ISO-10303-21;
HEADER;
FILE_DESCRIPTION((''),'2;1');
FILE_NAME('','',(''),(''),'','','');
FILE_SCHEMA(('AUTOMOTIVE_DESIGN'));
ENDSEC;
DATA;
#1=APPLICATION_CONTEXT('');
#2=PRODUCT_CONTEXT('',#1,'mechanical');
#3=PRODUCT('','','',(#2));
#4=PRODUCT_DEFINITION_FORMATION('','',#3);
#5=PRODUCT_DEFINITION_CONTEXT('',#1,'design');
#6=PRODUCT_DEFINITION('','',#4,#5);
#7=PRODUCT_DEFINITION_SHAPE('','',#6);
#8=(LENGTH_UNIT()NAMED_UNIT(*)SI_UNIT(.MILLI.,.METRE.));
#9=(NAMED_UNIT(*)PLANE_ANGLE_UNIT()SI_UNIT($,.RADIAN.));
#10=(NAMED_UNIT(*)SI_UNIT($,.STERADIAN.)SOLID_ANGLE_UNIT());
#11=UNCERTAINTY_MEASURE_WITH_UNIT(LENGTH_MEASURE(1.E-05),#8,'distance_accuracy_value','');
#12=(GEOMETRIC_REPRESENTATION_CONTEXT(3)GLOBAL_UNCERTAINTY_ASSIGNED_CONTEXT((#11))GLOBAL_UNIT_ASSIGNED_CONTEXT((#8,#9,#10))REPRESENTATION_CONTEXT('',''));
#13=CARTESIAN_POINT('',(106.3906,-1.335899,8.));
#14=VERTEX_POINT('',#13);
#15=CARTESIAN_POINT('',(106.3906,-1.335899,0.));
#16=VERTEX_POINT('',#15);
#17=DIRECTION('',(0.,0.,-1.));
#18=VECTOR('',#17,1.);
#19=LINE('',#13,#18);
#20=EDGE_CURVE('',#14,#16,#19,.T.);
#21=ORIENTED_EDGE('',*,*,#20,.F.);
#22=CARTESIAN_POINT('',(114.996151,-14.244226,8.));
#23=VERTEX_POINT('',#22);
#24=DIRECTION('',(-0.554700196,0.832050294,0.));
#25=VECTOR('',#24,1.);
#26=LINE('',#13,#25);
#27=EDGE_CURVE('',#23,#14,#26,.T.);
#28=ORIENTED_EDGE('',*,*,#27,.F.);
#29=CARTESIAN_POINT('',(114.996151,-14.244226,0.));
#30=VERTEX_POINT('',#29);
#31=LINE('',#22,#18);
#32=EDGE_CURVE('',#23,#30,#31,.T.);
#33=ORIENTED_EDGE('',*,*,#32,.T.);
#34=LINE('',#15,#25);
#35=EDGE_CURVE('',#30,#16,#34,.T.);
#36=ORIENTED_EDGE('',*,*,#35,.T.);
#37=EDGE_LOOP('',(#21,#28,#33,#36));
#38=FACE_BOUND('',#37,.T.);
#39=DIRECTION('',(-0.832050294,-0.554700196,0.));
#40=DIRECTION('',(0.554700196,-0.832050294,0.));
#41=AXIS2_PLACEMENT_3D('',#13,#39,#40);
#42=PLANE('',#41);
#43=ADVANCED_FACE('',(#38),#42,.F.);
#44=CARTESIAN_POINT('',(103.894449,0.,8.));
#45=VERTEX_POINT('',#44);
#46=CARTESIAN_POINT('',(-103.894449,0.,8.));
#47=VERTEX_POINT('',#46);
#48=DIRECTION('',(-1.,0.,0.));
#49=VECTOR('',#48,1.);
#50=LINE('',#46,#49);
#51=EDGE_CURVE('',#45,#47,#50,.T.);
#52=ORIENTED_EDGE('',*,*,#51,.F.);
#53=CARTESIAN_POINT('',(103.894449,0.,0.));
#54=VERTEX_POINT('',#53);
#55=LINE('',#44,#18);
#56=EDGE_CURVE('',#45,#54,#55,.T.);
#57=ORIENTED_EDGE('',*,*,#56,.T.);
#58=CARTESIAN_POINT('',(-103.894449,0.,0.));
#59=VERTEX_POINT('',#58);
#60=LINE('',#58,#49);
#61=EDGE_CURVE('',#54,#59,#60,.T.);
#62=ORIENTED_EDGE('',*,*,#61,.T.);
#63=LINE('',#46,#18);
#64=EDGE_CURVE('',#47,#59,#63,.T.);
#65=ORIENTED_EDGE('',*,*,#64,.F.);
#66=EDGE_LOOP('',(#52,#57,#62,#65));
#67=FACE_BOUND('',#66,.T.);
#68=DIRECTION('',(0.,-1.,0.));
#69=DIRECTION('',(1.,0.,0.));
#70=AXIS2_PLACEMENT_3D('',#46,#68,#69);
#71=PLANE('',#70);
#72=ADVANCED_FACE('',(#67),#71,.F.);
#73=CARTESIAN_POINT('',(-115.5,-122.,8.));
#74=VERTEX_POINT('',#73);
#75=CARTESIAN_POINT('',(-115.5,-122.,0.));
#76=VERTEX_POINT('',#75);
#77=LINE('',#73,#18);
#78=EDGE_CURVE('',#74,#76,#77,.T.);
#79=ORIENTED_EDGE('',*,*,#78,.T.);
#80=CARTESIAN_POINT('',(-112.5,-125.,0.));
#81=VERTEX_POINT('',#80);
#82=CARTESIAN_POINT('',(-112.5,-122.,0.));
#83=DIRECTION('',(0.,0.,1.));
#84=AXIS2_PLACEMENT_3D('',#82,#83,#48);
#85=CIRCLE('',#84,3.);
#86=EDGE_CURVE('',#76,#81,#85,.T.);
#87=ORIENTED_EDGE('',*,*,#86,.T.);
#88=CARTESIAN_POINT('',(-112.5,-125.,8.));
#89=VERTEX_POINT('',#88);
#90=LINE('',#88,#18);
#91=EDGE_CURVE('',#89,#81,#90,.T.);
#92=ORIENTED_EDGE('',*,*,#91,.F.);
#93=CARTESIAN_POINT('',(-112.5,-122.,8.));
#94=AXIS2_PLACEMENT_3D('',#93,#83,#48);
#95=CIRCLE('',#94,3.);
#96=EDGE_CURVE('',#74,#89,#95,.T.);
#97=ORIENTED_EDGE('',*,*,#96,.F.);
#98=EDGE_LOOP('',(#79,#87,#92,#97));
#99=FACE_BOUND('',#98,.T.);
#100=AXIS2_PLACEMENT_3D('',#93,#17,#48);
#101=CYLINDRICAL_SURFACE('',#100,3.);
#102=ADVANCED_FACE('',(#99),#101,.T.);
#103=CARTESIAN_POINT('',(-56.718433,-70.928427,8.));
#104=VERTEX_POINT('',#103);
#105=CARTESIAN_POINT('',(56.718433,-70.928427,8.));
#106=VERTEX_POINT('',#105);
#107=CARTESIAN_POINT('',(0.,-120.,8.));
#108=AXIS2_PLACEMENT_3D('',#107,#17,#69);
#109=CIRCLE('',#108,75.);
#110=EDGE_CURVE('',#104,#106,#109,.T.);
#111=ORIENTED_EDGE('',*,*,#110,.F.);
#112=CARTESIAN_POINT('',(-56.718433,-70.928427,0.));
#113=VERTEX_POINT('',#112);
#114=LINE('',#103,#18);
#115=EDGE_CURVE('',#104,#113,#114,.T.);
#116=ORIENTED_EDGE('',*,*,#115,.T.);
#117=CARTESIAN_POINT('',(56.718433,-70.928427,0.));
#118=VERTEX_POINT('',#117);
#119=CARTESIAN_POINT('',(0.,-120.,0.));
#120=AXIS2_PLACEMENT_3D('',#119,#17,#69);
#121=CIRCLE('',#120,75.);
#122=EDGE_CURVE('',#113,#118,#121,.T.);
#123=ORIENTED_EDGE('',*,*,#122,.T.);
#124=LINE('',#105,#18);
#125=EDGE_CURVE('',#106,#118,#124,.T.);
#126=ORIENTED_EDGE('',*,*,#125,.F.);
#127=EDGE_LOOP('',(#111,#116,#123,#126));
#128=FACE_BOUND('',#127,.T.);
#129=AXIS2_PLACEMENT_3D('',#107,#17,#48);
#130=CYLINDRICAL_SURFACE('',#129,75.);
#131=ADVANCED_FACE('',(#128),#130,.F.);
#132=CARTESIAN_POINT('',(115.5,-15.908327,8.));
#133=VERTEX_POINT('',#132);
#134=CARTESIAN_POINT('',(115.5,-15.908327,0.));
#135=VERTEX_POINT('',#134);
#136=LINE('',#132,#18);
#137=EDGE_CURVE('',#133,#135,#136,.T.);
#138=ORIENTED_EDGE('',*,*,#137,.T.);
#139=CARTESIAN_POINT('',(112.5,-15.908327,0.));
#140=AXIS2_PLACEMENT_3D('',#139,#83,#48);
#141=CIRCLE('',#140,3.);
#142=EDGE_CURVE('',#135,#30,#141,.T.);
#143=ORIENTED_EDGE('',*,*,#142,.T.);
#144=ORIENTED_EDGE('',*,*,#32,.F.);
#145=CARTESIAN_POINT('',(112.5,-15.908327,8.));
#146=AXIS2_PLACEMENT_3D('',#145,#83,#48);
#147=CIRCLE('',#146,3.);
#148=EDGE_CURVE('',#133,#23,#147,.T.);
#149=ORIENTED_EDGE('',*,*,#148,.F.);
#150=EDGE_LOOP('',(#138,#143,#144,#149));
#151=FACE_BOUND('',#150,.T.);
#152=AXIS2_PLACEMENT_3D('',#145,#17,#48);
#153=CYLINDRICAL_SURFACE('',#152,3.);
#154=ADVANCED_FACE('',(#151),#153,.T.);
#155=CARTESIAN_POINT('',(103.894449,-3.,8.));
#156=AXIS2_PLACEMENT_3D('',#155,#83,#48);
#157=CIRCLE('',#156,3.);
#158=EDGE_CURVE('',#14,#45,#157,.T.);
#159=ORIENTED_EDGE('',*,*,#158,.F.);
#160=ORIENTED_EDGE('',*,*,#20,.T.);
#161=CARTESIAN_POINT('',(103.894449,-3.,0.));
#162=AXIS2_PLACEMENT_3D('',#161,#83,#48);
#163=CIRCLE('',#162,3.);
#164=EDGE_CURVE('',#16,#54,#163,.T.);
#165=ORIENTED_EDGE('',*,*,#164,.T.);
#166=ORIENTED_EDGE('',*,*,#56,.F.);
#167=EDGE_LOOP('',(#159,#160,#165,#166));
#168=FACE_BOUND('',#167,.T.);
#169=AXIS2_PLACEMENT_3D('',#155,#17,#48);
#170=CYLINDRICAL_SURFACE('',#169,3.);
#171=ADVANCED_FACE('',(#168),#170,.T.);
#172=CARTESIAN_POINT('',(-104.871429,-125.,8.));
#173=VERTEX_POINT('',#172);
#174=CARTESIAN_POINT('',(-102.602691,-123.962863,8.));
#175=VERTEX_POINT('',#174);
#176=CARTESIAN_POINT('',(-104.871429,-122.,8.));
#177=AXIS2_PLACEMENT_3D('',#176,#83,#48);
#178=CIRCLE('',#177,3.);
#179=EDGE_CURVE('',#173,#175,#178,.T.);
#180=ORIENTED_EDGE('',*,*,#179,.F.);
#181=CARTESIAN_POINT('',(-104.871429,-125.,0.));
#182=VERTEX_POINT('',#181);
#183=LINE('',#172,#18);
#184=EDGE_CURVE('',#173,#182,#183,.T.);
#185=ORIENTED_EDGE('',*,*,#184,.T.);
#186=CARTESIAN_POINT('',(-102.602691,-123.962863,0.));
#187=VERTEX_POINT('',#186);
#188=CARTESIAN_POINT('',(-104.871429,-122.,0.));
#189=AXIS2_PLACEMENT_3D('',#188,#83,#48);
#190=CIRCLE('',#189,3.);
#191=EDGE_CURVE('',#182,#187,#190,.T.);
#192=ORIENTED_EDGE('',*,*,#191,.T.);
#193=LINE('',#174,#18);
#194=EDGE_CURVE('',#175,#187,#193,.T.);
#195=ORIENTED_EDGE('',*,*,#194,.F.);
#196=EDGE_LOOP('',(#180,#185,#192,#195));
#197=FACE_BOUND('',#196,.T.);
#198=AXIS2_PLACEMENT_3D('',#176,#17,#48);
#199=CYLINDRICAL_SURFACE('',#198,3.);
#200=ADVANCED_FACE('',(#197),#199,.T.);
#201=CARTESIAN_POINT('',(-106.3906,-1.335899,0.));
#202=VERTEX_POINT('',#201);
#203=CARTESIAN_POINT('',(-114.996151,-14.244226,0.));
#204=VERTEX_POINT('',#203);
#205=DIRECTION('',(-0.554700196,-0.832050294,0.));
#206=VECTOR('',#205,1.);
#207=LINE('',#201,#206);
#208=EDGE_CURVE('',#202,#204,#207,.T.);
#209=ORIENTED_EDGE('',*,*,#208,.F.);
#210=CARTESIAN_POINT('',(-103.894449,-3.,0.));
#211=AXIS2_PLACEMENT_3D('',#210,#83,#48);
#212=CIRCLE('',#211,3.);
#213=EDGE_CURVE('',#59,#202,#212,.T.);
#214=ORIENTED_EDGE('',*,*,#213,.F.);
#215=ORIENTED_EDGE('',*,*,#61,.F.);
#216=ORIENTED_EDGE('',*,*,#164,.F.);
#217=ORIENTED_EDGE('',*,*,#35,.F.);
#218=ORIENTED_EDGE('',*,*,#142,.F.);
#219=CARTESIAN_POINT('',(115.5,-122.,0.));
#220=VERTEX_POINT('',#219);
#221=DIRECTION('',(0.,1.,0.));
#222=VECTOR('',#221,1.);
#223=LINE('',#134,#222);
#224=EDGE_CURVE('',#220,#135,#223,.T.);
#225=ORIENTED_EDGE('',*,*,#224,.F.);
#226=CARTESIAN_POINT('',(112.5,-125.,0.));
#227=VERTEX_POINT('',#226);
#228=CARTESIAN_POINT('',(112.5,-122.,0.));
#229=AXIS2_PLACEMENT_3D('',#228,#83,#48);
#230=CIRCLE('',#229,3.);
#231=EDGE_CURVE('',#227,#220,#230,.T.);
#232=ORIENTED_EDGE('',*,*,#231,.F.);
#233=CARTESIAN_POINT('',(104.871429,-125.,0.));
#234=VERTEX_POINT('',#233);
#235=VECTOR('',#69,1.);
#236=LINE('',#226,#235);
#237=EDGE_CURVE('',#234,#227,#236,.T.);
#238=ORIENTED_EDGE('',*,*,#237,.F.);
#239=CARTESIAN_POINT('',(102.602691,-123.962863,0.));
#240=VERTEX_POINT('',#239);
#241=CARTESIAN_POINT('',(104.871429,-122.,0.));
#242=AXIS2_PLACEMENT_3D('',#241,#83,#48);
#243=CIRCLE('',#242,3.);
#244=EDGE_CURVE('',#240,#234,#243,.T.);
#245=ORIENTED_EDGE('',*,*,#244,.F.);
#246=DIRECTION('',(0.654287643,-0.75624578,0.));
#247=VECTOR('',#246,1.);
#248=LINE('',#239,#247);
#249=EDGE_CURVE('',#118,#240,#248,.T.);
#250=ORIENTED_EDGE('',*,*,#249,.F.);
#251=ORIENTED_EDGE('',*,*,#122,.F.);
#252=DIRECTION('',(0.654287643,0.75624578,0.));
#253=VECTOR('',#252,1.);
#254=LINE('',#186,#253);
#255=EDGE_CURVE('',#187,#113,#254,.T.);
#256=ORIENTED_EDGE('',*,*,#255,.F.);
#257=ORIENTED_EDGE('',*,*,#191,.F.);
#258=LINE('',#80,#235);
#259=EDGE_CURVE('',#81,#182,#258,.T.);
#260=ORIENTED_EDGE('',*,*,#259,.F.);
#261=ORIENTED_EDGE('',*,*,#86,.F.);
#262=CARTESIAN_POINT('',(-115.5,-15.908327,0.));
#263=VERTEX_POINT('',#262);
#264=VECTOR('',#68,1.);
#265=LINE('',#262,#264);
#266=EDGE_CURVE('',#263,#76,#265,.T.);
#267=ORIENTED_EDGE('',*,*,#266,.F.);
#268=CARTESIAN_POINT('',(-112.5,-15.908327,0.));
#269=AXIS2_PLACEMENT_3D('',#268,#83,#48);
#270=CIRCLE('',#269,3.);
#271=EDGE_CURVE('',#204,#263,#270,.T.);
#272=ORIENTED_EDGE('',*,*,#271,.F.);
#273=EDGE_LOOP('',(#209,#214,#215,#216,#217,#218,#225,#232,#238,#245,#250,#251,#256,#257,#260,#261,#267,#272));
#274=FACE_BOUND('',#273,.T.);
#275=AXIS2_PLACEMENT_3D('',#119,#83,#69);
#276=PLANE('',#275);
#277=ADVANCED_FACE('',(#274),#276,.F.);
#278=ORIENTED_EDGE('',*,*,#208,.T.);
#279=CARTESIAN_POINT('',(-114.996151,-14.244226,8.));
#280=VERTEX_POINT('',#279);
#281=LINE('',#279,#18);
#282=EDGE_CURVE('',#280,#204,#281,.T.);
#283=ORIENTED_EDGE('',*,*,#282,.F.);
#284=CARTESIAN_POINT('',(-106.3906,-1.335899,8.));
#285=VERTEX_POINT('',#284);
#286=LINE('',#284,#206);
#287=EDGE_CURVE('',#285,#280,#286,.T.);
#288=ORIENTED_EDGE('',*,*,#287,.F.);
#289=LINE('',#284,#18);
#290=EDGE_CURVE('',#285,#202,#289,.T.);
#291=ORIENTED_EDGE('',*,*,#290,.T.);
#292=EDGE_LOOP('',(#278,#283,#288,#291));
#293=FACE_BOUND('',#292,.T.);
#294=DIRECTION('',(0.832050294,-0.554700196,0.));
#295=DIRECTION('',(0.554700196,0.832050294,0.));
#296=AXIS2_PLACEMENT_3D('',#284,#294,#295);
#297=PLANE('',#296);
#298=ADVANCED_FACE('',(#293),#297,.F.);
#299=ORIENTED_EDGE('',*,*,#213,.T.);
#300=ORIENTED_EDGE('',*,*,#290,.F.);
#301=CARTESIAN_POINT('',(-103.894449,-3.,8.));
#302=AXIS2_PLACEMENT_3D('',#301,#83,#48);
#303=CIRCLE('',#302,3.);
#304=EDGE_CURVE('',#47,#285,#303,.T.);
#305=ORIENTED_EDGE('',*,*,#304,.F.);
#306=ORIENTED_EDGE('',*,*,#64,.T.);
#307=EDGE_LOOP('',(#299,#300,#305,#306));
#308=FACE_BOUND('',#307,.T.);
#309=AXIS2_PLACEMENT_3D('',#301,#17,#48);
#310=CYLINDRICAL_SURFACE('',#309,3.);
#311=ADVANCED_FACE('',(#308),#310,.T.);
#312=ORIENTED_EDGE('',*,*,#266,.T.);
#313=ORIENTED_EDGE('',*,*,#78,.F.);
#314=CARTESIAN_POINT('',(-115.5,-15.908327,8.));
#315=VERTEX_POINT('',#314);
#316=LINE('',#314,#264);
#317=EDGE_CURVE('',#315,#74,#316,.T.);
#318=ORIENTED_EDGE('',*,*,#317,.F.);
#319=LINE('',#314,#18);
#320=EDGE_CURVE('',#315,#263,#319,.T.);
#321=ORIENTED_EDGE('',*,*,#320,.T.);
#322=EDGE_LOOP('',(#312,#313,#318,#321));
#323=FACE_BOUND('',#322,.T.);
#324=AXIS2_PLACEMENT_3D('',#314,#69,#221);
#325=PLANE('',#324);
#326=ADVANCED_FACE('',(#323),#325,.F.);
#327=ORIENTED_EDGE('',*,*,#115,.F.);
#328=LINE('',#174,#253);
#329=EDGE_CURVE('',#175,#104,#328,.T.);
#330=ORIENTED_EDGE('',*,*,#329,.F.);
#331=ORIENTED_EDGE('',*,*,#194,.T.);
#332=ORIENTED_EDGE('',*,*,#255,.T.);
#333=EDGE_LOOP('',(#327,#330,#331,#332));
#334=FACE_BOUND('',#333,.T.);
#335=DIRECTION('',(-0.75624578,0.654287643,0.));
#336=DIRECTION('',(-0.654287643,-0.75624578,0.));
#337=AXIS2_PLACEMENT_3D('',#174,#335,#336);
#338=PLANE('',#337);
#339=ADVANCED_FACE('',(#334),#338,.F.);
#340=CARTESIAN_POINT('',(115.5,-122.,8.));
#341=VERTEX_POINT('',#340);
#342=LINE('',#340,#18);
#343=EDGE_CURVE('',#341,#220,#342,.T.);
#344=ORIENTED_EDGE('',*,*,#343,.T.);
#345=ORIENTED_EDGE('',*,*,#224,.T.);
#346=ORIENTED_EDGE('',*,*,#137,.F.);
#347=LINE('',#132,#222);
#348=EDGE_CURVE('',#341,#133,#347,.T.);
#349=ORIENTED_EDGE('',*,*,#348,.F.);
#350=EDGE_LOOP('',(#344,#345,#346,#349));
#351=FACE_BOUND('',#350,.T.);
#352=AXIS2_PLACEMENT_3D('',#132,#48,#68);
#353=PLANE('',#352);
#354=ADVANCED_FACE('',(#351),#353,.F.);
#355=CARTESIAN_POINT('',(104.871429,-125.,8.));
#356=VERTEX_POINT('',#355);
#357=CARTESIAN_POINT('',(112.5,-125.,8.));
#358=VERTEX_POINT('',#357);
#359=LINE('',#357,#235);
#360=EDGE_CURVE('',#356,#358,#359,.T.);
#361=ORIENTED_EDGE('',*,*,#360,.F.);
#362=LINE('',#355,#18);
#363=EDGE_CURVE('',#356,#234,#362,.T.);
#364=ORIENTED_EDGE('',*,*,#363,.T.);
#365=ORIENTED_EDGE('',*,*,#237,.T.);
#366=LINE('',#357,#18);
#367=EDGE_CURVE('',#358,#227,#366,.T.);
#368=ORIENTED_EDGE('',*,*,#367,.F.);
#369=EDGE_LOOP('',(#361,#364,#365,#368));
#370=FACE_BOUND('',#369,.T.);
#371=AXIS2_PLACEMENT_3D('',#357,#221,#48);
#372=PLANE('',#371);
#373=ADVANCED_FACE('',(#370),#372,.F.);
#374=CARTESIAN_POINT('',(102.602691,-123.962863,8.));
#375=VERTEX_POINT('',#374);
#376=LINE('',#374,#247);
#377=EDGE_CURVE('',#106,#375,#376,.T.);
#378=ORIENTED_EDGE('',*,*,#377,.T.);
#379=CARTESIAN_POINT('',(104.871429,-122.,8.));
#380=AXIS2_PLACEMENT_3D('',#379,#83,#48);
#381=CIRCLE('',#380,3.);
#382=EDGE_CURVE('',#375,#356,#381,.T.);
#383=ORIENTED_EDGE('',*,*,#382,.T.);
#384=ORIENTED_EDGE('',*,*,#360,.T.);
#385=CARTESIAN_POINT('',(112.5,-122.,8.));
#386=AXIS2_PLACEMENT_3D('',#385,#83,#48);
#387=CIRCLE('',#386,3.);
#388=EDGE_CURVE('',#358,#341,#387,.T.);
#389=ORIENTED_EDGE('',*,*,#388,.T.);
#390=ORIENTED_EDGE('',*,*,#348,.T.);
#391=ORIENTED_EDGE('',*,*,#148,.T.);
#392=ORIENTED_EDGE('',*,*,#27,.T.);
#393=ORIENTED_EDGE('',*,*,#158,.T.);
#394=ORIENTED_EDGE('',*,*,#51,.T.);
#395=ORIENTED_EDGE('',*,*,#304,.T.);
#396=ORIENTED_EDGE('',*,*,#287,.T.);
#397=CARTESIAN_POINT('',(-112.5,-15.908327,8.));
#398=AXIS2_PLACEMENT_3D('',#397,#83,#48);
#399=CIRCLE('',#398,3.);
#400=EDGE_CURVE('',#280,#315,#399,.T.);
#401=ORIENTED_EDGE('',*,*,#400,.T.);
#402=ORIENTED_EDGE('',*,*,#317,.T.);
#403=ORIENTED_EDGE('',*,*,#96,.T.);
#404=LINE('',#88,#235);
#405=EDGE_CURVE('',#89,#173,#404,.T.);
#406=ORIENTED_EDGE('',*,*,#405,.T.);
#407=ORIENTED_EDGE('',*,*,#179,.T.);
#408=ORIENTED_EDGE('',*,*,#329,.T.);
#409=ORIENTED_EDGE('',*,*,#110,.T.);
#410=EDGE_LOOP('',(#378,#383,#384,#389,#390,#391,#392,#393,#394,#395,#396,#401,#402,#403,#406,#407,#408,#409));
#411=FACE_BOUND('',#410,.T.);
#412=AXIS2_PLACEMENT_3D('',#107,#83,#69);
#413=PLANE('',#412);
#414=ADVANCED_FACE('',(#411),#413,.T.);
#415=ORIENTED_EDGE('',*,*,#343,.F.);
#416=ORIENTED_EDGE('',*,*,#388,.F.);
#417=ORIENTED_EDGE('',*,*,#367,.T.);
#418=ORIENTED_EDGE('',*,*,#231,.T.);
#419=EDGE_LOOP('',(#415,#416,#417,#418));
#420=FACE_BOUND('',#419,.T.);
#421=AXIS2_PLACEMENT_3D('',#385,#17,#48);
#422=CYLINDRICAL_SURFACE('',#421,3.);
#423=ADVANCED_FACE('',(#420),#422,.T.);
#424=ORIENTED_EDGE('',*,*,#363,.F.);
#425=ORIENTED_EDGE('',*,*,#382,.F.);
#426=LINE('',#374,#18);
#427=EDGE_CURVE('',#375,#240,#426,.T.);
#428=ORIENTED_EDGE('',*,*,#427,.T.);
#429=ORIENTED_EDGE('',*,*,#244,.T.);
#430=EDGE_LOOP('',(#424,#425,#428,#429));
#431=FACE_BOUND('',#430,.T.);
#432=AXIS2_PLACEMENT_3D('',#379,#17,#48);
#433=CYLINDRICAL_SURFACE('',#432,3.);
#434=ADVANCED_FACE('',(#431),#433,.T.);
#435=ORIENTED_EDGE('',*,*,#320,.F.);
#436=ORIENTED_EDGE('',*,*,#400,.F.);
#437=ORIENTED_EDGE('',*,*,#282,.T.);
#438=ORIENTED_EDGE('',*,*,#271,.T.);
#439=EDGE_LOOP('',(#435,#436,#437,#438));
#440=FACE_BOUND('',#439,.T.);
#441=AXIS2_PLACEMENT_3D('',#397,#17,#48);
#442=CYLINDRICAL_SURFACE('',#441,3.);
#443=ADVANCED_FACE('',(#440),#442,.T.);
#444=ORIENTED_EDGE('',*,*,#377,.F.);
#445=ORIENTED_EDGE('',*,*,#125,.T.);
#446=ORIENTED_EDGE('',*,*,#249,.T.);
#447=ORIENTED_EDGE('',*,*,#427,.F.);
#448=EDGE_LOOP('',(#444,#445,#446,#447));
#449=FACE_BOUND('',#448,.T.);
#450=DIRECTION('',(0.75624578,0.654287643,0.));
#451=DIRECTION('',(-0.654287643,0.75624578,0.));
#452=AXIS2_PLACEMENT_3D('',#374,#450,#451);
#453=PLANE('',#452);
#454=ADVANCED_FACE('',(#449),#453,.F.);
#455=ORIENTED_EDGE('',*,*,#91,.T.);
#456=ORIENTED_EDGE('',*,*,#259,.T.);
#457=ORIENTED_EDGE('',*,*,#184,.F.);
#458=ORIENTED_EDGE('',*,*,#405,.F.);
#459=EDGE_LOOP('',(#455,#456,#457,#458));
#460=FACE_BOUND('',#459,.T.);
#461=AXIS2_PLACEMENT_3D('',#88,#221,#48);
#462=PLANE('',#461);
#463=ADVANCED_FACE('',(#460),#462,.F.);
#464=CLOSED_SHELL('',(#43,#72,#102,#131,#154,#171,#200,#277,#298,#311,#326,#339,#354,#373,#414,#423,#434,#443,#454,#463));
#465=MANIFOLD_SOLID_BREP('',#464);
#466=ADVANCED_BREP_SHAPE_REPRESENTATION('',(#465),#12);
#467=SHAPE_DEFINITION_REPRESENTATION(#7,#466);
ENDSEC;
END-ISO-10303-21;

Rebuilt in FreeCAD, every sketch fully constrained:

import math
import FreeCAD as App
import Part
import Sketcher

V = App.Vector

doc = App.newDocument("Part")
params = doc.addObject("Spreadsheet::Sheet", "Params")
for row, (alias, value) in enumerate([
    ("sketch1_radius", "3 mm"),
    ("sketch1_radius2", "75 mm"),
    ("pad1_length", "8 mm"),
], start=1):
    params.set(f"A{row}", alias)
    params.set(f"B{row}", "=" + value)
    params.setAlias(f"B{row}", alias)

body = doc.addObject("PartDesign::Body", "Body")

sketch1 = doc.addObject("Sketcher::SketchObject", "Sketch")
body.addObject(sketch1)
sketch1.AttachmentSupport = (doc.XY_Plane, [""])
sketch1.MapMode = "FlatFace"
sketch1.addGeometry([
    Part.LineSegment(V(103.9, 0, 0), V(-103.9, 0, 0)),
    Part.ArcOfCircle(Part.Circle(V(-103.9, -3, 0), V(0, 0, 1), 3), math.radians(90), math.radians(146)),
    Part.LineSegment(V(-106.4, -1.3, 0), V(-115, -14.2, 0)),
    Part.ArcOfCircle(Part.Circle(V(-112.5, -15.9, 0), V(0, 0, 1), 3), math.radians(146), math.radians(180)),
    Part.LineSegment(V(-115.5, -15.9, 0), V(-115.5, -122, 0)),
    Part.ArcOfCircle(Part.Circle(V(-112.5, -122, 0), V(0, 0, 1), 3), math.radians(180), math.radians(270)),
    Part.LineSegment(V(-112.5, -125, 0), V(-104.9, -125, 0)),
    Part.ArcOfCircle(Part.Circle(V(-104.9, -122, 0), V(0, 0, 1), 3), math.radians(-90), math.radians(-41)),
    Part.LineSegment(V(-102.6, -124, 0), V(-56.7, -70.9, 0)),
    Part.ArcOfCircle(Part.Circle(V(0, -120, 0), V(0, 0, 1), 75), math.radians(41), math.radians(139)),
    Part.LineSegment(V(56.7, -70.9, 0), V(102.6, -124, 0)),
    Part.ArcOfCircle(Part.Circle(V(104.9, -122, 0), V(0, 0, 1), 3), math.radians(-139), math.radians(-90)),
    Part.LineSegment(V(104.9, -125, 0), V(112.5, -125, 0)),
    Part.ArcOfCircle(Part.Circle(V(112.5, -122, 0), V(0, 0, 1), 3), math.radians(-90), math.radians(0)),
    Part.LineSegment(V(115.5, -122, 0), V(115.5, -15.9, 0)),
    Part.ArcOfCircle(Part.Circle(V(112.5, -15.9, 0), V(0, 0, 1), 3), math.radians(0), math.radians(34)),
    Part.LineSegment(V(115, -14.2, 0), V(106.4, -1.3, 0)),
    Part.ArcOfCircle(Part.Circle(V(103.9, -3, 0), V(0, 0, 1), 3), math.radians(34), math.radians(90)),
], False)
sketch1.addConstraint([
    Sketcher.Constraint("Tangent", 0, 2, 1, 1),
    Sketcher.Constraint("Tangent", 1, 2, 2, 1),
    Sketcher.Constraint("Tangent", 2, 2, 3, 1),
    Sketcher.Constraint("Tangent", 3, 2, 4, 1),
    Sketcher.Constraint("Tangent", 4, 2, 5, 1),
    Sketcher.Constraint("Tangent", 5, 2, 6, 1),
    Sketcher.Constraint("Tangent", 6, 2, 7, 1),
    Sketcher.Constraint("Tangent", 7, 2, 8, 1),
    Sketcher.Constraint("Tangent", 8, 2, 9, 2),
    Sketcher.Constraint("Tangent", 9, 1, 10, 1),
    Sketcher.Constraint("Tangent", 10, 2, 11, 1),
    Sketcher.Constraint("Tangent", 11, 2, 12, 1),
    Sketcher.Constraint("Tangent", 12, 2, 13, 1),
    Sketcher.Constraint("Tangent", 13, 2, 14, 1),
    Sketcher.Constraint("Tangent", 14, 2, 15, 1),
    Sketcher.Constraint("Tangent", 15, 2, 16, 1),
    Sketcher.Constraint("Tangent", 16, 2, 17, 1),
    Sketcher.Constraint("Tangent", 17, 2, 0, 1),
    Sketcher.Constraint("Horizontal", 0),
    Sketcher.Constraint("Vertical", 4),
    Sketcher.Constraint("Horizontal", 6),
    Sketcher.Constraint("Horizontal", 12),
    Sketcher.Constraint("Vertical", 14),
    Sketcher.Constraint("Equal", 1, 3),
    Sketcher.Constraint("Equal", 3, 5),
    Sketcher.Constraint("Equal", 5, 7),
    Sketcher.Constraint("Equal", 7, 11),
    Sketcher.Constraint("Equal", 11, 13),
    Sketcher.Constraint("Equal", 13, 15),
    Sketcher.Constraint("Equal", 15, 17),
    Sketcher.Constraint("Symmetric", 0, 2, 17, 2, -1, 1),
    Sketcher.Constraint("Symmetric", 7, 3, 11, 3, -2),
    Sketcher.Constraint("Symmetric", 3, 3, 15, 3, -2),
    Sketcher.Constraint("PointOnObject", 9, 3, -2),
    Sketcher.Constraint("Radius", 1, 3.0),
    Sketcher.Constraint("Radius", 9, 75.0),
    Sketcher.Constraint("DistanceY", 5, 3, -1, 1, 122.0),
    Sketcher.Constraint("DistanceY", 9, 3, -1, 1, 120.0),
    Sketcher.Constraint("DistanceX", 5, 3, 13, 3, 225.0),
    Sketcher.Constraint("DistanceX", 6, 1, 6, 2, 7.628571),
    Sketcher.Constraint("DistanceX", 1, 2, -1, 1, 106.3906),
    Sketcher.Constraint("DistanceY", 1, 2, -1, 1, 1.335899),
])
sketch1.setExpression("Constraints[34]", "Params.sketch1_radius")
sketch1.setExpression("Constraints[35]", "Params.sketch1_radius2")
pad1 = doc.addObject("PartDesign::Pad", "Pad")
body.addObject(pad1)
pad1.Profile = sketch1
pad1.setExpression("Length", "Params.pad1_length")

doc.recompute()
